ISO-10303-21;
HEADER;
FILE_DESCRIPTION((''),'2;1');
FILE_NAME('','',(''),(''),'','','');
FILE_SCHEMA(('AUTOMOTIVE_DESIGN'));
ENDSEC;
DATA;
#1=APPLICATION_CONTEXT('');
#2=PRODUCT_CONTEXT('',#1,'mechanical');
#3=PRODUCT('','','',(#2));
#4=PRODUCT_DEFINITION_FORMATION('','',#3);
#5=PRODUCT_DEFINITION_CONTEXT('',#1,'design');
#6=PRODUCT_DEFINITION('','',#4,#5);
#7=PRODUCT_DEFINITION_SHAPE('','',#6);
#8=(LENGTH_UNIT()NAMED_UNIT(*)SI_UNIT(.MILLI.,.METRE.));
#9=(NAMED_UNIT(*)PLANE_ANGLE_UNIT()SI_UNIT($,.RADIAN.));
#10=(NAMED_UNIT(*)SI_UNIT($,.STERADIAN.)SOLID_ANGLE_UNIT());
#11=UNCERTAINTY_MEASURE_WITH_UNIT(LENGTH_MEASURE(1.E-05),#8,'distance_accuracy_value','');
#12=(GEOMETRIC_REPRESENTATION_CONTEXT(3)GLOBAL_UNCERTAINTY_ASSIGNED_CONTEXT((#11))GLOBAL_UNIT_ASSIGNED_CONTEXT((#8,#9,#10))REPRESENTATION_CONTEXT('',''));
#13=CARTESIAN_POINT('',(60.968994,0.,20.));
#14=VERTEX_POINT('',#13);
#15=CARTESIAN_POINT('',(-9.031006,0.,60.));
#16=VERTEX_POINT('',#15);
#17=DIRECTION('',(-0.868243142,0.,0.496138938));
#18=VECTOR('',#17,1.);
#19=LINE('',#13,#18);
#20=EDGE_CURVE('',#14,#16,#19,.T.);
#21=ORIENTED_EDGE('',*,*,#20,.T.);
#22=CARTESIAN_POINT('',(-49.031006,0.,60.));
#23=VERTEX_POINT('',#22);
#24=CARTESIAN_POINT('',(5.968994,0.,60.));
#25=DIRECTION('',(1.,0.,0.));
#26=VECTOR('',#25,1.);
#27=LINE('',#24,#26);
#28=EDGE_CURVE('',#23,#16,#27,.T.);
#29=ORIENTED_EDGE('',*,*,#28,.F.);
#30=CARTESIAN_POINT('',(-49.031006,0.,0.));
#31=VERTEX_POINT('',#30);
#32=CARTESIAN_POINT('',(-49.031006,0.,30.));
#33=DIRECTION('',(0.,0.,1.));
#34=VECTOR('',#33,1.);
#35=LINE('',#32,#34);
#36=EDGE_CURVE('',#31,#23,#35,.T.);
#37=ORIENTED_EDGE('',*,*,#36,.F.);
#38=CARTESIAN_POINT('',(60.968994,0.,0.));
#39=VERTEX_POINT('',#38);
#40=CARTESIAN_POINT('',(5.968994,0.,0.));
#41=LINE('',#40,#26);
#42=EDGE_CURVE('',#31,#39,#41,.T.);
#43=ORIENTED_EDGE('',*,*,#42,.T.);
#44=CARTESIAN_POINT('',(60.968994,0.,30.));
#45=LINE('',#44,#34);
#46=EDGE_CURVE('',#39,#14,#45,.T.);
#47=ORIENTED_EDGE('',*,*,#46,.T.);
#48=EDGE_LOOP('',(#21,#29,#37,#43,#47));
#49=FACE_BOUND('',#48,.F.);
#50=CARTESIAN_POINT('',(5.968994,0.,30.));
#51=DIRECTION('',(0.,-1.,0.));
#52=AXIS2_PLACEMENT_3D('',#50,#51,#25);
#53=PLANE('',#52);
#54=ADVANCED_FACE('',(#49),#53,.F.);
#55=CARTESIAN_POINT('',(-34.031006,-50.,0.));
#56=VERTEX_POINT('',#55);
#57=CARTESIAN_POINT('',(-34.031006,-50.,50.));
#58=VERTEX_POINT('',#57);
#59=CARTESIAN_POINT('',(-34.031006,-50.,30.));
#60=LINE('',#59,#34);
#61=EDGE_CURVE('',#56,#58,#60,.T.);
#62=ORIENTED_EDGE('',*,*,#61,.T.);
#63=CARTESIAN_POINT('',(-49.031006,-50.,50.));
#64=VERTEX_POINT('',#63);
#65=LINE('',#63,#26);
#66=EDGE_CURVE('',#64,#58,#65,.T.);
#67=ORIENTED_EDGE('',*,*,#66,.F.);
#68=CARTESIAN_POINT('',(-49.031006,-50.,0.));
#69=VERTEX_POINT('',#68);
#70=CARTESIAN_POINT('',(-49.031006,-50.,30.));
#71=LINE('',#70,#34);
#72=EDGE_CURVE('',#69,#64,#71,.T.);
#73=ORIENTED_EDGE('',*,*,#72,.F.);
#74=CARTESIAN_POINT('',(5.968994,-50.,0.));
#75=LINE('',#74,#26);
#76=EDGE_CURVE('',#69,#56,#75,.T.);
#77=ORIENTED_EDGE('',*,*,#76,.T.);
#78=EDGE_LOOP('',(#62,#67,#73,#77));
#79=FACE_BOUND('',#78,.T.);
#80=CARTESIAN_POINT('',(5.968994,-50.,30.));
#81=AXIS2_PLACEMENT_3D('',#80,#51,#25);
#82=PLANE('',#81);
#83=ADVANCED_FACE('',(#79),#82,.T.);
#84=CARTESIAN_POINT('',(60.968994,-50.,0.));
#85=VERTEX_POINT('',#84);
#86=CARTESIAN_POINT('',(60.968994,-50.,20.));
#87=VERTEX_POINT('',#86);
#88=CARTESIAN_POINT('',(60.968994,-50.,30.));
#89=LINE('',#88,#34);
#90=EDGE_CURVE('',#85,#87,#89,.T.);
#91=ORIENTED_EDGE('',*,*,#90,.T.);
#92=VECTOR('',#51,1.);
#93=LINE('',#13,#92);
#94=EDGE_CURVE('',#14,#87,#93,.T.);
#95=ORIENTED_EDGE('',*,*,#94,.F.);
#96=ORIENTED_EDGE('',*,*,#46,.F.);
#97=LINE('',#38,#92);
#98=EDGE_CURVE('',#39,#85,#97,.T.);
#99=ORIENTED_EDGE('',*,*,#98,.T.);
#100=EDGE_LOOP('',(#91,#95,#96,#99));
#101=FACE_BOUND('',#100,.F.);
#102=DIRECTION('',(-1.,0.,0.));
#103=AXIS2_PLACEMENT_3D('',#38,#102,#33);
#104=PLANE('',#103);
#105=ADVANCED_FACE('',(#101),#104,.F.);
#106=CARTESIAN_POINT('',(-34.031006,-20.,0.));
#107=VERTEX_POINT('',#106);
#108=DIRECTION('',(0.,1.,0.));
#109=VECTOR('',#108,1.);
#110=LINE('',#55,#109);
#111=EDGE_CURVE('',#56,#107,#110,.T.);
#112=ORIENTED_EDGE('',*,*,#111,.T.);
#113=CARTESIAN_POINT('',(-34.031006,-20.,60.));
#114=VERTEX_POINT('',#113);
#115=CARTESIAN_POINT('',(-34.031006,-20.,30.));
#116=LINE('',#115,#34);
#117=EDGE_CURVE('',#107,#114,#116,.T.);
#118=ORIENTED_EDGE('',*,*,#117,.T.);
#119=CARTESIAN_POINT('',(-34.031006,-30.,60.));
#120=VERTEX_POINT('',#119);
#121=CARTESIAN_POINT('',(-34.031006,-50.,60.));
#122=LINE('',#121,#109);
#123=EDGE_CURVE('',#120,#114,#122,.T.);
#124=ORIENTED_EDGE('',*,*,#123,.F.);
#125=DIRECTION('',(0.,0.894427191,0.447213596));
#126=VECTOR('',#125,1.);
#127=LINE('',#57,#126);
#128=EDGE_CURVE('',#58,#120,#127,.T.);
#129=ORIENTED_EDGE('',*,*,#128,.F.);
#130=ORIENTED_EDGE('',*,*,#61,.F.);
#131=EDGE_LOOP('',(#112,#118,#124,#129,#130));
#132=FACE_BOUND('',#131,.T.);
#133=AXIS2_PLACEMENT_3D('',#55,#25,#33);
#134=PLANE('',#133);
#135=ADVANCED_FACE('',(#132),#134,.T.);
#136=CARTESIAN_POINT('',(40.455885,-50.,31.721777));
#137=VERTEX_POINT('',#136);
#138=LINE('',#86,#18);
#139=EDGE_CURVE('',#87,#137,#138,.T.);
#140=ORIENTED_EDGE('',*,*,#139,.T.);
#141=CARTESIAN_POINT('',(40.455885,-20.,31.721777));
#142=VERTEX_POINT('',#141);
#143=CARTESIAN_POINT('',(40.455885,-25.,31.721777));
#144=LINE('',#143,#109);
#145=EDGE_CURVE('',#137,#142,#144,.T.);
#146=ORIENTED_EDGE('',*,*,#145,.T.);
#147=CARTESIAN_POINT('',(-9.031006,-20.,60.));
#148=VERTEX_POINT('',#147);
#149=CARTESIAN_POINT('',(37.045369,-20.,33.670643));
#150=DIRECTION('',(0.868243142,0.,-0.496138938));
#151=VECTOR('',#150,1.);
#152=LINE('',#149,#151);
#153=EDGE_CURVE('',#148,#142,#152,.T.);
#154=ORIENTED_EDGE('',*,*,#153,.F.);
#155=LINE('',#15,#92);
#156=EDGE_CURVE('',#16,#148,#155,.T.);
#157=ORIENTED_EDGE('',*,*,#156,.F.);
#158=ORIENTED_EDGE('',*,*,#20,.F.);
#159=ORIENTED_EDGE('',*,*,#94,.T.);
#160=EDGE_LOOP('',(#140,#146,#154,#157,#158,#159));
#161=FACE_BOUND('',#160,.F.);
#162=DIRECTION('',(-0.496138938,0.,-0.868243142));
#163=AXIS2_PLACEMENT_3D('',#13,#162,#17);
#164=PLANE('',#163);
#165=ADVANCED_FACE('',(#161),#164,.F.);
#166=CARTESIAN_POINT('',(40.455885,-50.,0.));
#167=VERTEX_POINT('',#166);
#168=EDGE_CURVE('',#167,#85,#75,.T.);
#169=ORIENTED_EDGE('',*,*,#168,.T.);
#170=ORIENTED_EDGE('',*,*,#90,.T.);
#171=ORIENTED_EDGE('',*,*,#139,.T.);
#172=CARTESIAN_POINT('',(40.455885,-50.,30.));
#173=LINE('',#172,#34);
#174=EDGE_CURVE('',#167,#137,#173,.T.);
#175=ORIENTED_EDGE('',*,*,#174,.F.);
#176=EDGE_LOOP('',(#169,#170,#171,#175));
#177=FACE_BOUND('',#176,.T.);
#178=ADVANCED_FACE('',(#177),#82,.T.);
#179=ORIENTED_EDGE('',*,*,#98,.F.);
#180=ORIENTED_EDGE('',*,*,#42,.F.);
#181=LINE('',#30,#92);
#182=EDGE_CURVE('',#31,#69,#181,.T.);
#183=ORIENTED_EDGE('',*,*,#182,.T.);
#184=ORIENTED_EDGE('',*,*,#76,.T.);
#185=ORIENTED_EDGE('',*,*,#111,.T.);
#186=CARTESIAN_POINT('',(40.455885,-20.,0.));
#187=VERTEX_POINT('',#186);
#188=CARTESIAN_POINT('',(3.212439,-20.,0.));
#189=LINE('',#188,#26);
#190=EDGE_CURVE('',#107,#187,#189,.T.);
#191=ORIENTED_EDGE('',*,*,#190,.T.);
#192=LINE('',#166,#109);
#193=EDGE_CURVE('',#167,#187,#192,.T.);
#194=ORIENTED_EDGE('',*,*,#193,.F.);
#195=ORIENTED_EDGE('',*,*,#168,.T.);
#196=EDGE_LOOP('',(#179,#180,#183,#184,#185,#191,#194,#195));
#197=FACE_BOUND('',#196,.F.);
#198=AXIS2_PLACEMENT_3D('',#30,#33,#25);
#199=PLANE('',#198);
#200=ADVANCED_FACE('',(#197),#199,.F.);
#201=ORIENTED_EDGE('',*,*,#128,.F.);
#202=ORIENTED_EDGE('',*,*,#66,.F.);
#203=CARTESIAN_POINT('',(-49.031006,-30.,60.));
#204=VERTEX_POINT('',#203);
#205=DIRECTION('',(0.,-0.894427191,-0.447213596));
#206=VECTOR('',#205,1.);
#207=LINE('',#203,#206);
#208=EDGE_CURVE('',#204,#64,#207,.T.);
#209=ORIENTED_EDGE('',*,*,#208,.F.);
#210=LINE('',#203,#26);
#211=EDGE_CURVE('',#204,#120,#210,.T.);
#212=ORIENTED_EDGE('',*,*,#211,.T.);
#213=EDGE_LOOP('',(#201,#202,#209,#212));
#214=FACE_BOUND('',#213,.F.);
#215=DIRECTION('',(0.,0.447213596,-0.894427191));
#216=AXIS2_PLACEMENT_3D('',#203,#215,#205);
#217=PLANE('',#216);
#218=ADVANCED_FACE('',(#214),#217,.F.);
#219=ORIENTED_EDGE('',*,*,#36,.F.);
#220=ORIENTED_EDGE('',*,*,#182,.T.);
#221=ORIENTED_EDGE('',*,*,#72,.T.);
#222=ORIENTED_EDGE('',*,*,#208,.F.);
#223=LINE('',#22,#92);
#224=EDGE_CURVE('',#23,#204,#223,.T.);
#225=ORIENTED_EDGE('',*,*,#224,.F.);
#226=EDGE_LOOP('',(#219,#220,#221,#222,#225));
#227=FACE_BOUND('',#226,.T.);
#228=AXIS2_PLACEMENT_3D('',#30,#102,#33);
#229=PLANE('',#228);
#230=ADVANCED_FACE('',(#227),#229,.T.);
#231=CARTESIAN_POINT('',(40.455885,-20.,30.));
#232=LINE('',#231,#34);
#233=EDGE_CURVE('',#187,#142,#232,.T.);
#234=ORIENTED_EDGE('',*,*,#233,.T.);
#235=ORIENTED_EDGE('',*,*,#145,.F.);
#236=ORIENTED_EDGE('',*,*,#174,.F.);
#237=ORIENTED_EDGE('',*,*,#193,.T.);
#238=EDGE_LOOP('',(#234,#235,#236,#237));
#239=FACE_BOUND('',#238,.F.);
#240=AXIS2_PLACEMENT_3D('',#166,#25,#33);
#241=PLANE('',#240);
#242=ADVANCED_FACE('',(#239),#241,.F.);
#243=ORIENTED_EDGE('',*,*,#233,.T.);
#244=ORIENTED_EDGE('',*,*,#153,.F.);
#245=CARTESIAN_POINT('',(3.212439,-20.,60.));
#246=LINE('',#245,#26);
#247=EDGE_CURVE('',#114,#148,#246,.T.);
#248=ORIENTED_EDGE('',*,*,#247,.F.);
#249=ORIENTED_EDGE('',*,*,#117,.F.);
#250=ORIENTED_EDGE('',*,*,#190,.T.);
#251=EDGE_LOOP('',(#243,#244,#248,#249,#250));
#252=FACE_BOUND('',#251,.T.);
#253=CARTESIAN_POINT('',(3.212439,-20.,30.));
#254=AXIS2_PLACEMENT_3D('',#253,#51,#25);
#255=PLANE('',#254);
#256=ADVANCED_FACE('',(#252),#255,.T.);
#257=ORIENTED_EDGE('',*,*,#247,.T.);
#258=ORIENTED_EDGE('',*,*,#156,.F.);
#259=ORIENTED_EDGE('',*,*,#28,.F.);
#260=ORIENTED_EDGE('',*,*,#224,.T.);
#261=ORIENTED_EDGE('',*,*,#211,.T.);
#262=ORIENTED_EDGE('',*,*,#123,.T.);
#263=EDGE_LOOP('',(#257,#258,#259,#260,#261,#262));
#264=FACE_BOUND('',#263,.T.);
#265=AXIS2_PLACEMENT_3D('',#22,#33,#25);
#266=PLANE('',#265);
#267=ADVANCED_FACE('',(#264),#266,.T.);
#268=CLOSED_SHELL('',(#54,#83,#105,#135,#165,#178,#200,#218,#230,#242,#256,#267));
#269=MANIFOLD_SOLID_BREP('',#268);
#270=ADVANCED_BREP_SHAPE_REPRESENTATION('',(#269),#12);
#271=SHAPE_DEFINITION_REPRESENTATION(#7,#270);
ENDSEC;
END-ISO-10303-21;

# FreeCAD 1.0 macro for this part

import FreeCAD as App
import Part
import Sketcher

V = App.Vector
Q = App.Units.Quantity


def add_polygon(sketch, points):
    """Adds a closed chain of lines whose ends are joined by coincident constraints."""
    first, n = sketch.GeometryCount, len(points)
    for a, b in zip(points, points[1:] + points[:1]):
        sketch.addGeometry(Part.LineSegment(App.Vector(*a, 0), App.Vector(*b, 0)), False)
    for i in range(n):
        sketch.addConstraint(Sketcher.Constraint("Coincident", first + i, 2, first + (i + 1) % n, 1))

doc = App.newDocument("Part")
params = doc.addObject("Spreadsheet::Sheet", "Params")
for row, (alias, value) in enumerate([
    ("sketch1_width", "110 mm"),
    ("sketch1_height", "60 mm"),
    ("pad1_length", "50 mm"),
    ("sketch2_height", "60 mm"),
    ("pocket1_length", "30 mm"),
    ("sketch3_width", "20 mm"),
    ("sketch3_height", "10 mm"),
    ("pocket2_length", "15 mm"),
    ("sketch4_width", "70 mm"),
    ("sketch4_height", "40 mm"),
    ("pocket3_length", "50 mm"),
], start=1):
    params.set(f"A{row}", alias)
    params.set(f"B{row}", "=" + value)
    params.setAlias(f"B{row}", alias)

body = doc.addObject("PartDesign::Body", "Body")

# Sketch on XZ plane
sketch1 = doc.addObject("Sketcher::SketchObject", "Sketch")
body.addObject(sketch1)
sketch1.AttachmentSupport = (doc.XZ_Plane, [""])
sketch1.MapMode = "FlatFace"
add_polygon(sketch1, [(-49, 60), (-49, 0), (61, 0), (61, 60)])  # lines 0-3
sketch1.addConstraint([
    Sketcher.Constraint("Vertical", 0),
    Sketcher.Constraint("Horizontal", 1),
    Sketcher.Constraint("Vertical", 2),
    Sketcher.Constraint("Horizontal", 3),
    Sketcher.Constraint("PointOnObject", 0, 2, -1),
    Sketcher.Constraint("DistanceX", 1, 1, 1, 2, Q("110 mm")),
    Sketcher.Constraint("DistanceY", 0, 2, 0, 1, Q("60 mm")),
    Sketcher.Constraint("DistanceX", 0, 2, -1, 1, Q("49.031006 mm")),
])
sketch1.setExpression("Constraints[9]", "Params.sketch1_width")
sketch1.setExpression("Constraints[10]", "Params.sketch1_height")
pad1 = doc.addObject("PartDesign::Pad", "Pad")
body.addObject(pad1)
pad1.Profile = sketch1
pad1.setExpression("Length", "Params.pad1_length")

# Sketch on XZ plane
sketch2 = doc.addObject("Sketcher::SketchObject", "Sketch001")
body.addObject(sketch2)
sketch2.AttachmentSupport = (doc.XZ_Plane, [""])
sketch2.MapMode = "FlatFace"
sketch2.AttachmentOffset = App.Placement(V(0, 0, 50), App.Rotation())
add_polygon(sketch2, [(-34, 60), (-34, 0), (40, 0), (40, 60)])  # lines 0-3
sketch2.addConstraint([
    Sketcher.Constraint("Vertical", 0),
    Sketcher.Constraint("Horizontal", 1),
    Sketcher.Constraint("Vertical", 2),
    Sketcher.Constraint("Horizontal", 3),
    Sketcher.Constraint("PointOnObject", 0, 2, -1),
    Sketcher.Constraint("DistanceY", 0, 2, 0, 1, Q("60 mm")),
    Sketcher.Constraint("DistanceX", 1, 1, 1, 2, Q("74.486891 mm")),
    Sketcher.Constraint("DistanceX", 0, 2, -1, 1, Q("34.031006 mm")),
])
sketch2.setExpression("Constraints[9]", "Params.sketch2_height")
pocket1 = doc.addObject("PartDesign::Pocket", "Pocket")
body.addObject(pocket1)
pocket1.Profile = sketch2
pocket1.setExpression("Length", "Params.pocket1_length")

# Sketch on YZ plane
sketch3 = doc.addObject("Sketcher::SketchObject", "Sketch002")
body.addObject(sketch3)
sketch3.AttachmentSupport = (doc.YZ_Plane, [""])
sketch3.MapMode = "FlatFace"
sketch3.AttachmentOffset = App.Placement(V(0, 0, -49.031006), App.Rotation())
add_polygon(sketch3, [(-50, 60), (-30, 60), (-50, 50)])  # lines 0-2
sketch3.addConstraint([
    Sketcher.Constraint("Horizontal", 0),
    Sketcher.Constraint("Vertical", 2),
    Sketcher.Constraint("DistanceX", 0, 1, 0, 2, Q("20 mm")),
    Sketcher.Constraint("DistanceY", 2, 1, 2, 2, Q("10 mm")),
    Sketcher.Constraint("DistanceX", 0, 2, -1, 1, Q("30 mm")),
    Sketcher.Constraint("DistanceY", -1, 1, 0, 2, Q("60 mm")),
])
sketch3.setExpression("Constraints[5]", "Params.sketch3_width")
sketch3.setExpression("Constraints[6]", "Params.sketch3_height")
pocket2 = doc.addObject("PartDesign::Pocket", "Pocket001")
body.addObject(pocket2)
pocket2.Profile = sketch3
pocket2.setExpression("Length", "Params.pocket2_length")
pocket2.Reversed = True

# Sketch on XZ plane
sketch4 = doc.addObject("Sketcher::SketchObject", "Sketch003")
body.addObject(sketch4)
sketch4.AttachmentSupport = (doc.XZ_Plane, [""])
sketch4.MapMode = "FlatFace"
add_polygon(sketch4, [(61, 20), (-9, 60), (61, 60)])  # lines 0-2
sketch4.addConstraint([
    Sketcher.Constraint("Horizontal", 1),
    Sketcher.Constraint("Vertical", 2),
    Sketcher.Constraint("DistanceX", 1, 1, 1, 2, Q("70 mm")),
    Sketcher.Constraint("DistanceY", 2, 2, 2, 1, Q("40 mm")),
    Sketcher.Constraint("DistanceY", -1, 1, 0, 2, Q("60 mm")),
    Sketcher.Constraint("DistanceX", 0, 2, -1, 1, Q("9.031006 mm")),
])
sketch4.setExpression("Constraints[5]", "Params.sketch4_width")
sketch4.setExpression("Constraints[6]", "Params.sketch4_height")
pocket3 = doc.addObject("PartDesign::Pocket", "Pocket002")
body.addObject(pocket3)
pocket3.Profile = sketch4
pocket3.setExpression("Length", "Params.pocket3_length")
pocket3.Reversed = True

doc.recompute()
